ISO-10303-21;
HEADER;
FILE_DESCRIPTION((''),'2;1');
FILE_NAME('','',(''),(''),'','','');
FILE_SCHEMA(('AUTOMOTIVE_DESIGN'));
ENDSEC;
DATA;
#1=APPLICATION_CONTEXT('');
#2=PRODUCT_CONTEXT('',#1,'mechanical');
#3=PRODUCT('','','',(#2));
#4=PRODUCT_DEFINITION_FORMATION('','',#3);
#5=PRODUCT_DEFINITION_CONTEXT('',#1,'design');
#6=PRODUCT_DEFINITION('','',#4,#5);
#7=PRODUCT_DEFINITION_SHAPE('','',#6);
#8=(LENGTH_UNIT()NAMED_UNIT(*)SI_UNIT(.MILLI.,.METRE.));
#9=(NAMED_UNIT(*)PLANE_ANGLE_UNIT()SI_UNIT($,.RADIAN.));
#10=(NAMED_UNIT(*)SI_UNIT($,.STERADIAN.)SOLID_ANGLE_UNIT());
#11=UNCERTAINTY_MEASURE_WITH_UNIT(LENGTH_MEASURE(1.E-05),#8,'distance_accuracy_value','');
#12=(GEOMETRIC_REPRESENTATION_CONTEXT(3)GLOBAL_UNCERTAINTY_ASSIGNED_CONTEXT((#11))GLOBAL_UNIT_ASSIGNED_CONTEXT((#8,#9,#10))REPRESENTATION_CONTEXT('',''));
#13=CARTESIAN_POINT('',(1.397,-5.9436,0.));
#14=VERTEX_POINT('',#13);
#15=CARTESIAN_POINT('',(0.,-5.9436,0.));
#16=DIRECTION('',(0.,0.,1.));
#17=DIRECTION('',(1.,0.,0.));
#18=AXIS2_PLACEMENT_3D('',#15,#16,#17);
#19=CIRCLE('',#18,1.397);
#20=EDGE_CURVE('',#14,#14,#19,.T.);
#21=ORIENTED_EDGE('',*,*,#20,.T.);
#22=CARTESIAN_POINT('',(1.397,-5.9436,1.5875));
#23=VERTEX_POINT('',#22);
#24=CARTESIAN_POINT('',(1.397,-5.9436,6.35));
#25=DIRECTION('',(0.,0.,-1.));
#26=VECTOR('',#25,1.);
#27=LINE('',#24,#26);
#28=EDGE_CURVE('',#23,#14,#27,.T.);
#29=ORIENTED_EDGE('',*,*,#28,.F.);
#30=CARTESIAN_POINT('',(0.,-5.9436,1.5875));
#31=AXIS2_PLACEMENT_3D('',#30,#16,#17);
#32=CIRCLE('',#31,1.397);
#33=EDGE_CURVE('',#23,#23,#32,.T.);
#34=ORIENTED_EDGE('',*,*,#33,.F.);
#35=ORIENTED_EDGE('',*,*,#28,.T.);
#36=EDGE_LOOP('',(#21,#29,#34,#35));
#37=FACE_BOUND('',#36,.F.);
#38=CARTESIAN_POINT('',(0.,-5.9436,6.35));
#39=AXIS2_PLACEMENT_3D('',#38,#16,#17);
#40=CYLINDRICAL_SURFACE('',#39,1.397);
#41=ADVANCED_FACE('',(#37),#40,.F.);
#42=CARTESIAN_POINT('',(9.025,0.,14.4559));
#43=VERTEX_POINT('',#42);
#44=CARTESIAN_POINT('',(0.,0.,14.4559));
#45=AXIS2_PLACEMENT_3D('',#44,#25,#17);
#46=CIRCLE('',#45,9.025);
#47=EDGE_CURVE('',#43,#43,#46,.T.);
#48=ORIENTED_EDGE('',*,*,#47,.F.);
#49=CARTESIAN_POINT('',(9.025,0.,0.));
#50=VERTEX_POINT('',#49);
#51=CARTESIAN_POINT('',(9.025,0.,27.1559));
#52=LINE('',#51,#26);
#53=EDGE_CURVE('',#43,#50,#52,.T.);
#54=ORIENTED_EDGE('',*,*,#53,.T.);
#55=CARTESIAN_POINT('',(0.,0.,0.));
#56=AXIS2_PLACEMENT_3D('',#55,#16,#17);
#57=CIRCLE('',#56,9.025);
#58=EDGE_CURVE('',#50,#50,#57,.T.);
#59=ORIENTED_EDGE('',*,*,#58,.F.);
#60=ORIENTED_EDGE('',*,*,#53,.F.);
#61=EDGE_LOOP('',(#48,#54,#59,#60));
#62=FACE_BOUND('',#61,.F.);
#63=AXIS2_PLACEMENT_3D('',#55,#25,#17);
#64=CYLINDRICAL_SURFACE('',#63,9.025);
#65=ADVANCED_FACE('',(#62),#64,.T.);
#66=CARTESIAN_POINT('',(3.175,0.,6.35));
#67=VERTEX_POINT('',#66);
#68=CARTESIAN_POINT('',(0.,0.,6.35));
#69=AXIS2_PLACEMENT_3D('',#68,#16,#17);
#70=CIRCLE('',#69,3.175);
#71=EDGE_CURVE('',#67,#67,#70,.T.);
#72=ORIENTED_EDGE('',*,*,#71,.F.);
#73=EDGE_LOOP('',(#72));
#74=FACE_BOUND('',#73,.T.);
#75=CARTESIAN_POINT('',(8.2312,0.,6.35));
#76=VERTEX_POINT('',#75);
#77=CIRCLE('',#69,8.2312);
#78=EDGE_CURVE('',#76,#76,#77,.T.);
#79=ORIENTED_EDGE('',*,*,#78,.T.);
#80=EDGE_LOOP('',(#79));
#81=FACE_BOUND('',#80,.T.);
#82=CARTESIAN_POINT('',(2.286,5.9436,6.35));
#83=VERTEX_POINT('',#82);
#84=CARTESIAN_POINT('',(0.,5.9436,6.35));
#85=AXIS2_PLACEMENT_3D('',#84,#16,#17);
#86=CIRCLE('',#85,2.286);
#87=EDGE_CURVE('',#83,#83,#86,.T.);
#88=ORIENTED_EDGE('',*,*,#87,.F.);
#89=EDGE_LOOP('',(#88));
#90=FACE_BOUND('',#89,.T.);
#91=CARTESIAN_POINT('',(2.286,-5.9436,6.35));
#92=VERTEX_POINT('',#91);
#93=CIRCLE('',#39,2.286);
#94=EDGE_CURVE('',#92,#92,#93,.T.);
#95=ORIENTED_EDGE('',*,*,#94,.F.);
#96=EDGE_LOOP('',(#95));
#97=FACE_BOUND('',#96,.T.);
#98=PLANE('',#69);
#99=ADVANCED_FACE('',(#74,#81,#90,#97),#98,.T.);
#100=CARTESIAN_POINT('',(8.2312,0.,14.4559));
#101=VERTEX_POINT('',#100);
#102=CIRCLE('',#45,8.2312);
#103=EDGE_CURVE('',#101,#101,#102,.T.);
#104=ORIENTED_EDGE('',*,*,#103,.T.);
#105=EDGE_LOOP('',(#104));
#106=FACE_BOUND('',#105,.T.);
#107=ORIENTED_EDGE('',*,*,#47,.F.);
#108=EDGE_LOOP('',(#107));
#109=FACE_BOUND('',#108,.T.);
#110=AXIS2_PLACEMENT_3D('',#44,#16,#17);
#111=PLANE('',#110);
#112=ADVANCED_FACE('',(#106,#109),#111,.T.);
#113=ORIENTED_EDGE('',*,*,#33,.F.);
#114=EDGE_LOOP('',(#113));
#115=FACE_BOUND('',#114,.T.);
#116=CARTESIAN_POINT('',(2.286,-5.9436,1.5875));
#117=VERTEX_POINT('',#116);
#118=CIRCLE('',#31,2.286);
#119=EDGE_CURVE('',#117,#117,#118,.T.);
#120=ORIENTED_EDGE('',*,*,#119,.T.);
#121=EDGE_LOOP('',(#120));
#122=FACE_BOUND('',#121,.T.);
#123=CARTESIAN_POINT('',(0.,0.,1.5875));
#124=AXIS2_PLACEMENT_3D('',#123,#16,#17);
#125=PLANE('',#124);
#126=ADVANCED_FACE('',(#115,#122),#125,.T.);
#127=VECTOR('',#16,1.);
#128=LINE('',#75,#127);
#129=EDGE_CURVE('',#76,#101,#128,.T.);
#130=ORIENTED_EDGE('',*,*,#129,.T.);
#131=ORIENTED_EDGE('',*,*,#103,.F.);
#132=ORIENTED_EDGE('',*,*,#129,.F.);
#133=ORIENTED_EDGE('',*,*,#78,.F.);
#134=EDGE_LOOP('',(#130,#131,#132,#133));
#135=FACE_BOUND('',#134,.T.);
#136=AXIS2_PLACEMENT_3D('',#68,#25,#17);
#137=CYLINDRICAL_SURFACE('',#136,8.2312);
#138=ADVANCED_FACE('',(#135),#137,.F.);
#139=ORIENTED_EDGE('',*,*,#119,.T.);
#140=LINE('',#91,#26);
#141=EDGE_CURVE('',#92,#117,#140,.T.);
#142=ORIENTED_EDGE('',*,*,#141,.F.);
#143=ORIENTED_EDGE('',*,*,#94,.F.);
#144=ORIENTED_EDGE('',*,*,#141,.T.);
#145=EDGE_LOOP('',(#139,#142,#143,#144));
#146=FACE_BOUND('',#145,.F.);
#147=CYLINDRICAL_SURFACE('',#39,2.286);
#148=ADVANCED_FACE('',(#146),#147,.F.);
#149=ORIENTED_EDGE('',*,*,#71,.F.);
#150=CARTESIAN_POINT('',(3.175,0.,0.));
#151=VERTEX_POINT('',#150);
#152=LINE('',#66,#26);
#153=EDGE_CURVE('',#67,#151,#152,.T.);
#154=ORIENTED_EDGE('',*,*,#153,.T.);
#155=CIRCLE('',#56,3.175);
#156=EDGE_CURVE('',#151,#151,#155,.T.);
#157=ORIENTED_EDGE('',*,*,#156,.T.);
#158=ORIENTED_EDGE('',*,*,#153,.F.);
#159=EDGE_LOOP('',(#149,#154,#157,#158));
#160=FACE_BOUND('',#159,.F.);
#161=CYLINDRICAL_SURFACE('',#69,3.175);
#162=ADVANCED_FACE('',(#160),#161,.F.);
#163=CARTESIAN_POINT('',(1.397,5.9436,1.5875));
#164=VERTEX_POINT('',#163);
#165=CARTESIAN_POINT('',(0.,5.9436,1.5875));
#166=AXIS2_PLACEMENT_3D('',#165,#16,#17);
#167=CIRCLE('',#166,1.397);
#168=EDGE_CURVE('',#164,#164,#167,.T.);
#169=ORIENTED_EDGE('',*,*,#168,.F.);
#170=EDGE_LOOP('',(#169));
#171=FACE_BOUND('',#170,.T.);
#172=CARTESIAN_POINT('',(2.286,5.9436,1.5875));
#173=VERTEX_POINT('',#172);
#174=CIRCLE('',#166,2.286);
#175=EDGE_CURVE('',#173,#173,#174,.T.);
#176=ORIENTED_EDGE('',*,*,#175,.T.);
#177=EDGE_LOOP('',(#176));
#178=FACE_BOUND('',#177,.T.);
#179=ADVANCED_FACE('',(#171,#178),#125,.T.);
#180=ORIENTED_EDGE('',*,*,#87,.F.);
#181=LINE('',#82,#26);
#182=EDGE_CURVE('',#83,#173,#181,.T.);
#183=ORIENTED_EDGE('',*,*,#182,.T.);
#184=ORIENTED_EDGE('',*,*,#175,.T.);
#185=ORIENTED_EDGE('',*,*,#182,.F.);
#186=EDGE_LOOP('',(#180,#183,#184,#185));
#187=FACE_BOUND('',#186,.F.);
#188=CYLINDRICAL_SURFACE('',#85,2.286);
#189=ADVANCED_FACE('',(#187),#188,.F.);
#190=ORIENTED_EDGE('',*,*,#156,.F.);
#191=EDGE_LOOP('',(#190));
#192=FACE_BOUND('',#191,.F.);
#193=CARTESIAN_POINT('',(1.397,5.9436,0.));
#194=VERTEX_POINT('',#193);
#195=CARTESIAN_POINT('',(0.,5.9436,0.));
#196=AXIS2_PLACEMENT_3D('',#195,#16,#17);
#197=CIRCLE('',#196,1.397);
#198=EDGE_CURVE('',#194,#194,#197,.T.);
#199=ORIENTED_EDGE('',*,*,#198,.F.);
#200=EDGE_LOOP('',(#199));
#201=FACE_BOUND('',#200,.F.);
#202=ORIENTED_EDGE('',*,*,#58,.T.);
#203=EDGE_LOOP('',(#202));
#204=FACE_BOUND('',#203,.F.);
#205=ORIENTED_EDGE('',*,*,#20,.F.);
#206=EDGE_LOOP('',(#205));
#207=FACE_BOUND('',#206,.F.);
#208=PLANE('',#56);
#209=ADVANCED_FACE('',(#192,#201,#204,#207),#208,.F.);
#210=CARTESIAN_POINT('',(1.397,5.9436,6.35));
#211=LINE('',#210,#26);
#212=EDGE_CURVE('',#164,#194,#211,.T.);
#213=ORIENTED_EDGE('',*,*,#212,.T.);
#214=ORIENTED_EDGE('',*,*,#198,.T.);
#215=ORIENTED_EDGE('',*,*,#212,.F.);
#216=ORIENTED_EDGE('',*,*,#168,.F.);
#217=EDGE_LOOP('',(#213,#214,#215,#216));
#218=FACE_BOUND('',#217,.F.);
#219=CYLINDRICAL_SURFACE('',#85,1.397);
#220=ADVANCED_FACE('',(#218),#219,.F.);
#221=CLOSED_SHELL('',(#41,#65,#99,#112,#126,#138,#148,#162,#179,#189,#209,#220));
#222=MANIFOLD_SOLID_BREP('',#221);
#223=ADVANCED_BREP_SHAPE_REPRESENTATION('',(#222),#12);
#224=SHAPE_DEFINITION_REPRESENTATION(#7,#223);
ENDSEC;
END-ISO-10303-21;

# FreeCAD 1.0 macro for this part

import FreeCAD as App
import Part
import Sketcher
from FreeCAD import Vector
Q = App.Units.Quantity

doc = App.newDocument("Part")
params = doc.addObject("Spreadsheet::Sheet", "Params")
for row, (alias, value) in enumerate([
    ("pad1_length", "0.25 in"),
    ("pad2_length", "20.8059 mm"),
    ("sketch3_diameter", "0.11 in"),
    ("pocket1_length", "1 in"),
    ("sketch4_diameter", "0.18 in"),
    ("pocket2_length", "0.1875 in"),
    ("sketch5_diameter", "0.25 in"),
    ("pocket3_length", "1 in"),
    ("pocket4_length", "0.5 in"),
], start=1):
    params.set(f"A{row}", alias)
    params.set(f"B{row}", "=" + value)
    params.setAlias(f"B{row}", alias)

body = doc.addObject("PartDesign::Body", "Body")

# Sketch on XY plane
sketch1 = body.newObject("Sketcher::SketchObject", "Sketch")
sketch1.AttachmentSupport = (doc.getObject("XY_Plane"), [""])
sketch1.MapMode = "FlatFace"
sketch1.addGeometry(Part.Circle(Vector(0, 0, 0), Vector(0, 0, 1), 9), False)
sketch1.addConstraint(Sketcher.Constraint("Coincident", 0, 3, -1, 1))
sketch1.addConstraint(Sketcher.Constraint("Diameter", 0, 18.05))
pad1 = body.newObject("PartDesign::Pad", "Pad")
pad1.Profile = sketch1
pad1.setExpression("Length", "Params.pad1_length")

# Sketch on XY plane
sketch2 = body.newObject("Sketcher::SketchObject", "Sketch001")
sketch2.AttachmentSupport = (doc.getObject("XY_Plane"), [""])
sketch2.MapMode = "FlatFace"
sketch2.AttachmentOffset = App.Placement(Vector(0, 0, 0.25 * 25.4), App.Rotation())
sketch2.addGeometry(Part.Circle(Vector(0, 0, 0), Vector(0, 0, 1), 9), False)
sketch2.addGeometry(Part.Circle(Vector(0, 0, 0), Vector(0, 0, 1), 8), False)
sketch2.addConstraint(Sketcher.Constraint("Coincident", 0, 3, -1, 1))
sketch2.addConstraint(Sketcher.Constraint("Coincident", 1, 3, -1, 1))
sketch2.addConstraint(Sketcher.Constraint("Diameter", 0, 18.05))
sketch2.addConstraint(Sketcher.Constraint("Diameter", 1, 16.4624))
pad2 = body.newObject("PartDesign::Pad", "Pad001")
pad2.Profile = sketch2
pad2.setExpression("Length", "Params.pad2_length")

# Sketch on XY plane
sketch3 = body.newObject("Sketcher::SketchObject", "Sketch002")
sketch3.AttachmentSupport = (doc.getObject("XY_Plane"), [""])
sketch3.MapMode = "FlatFace"
sketch3.AttachmentOffset = App.Placement(Vector(0, 0, 0.25 * 25.4), App.Rotation())
sketch3.addGeometry(Part.Circle(Vector(0, 5.9, 0), Vector(0, 0, 1), 1.4), False)
sketch3.addGeometry(Part.Circle(Vector(0, -5.9, 0), Vector(0, 0, 1), 1.4), False)
sketch3.addConstraint(Sketcher.Constraint("Equal", 0, 1))
sketch3.addConstraint(Sketcher.Constraint("Symmetric", 0, 3, 1, 3, -1, 1))
sketch3.addConstraint(Sketcher.Constraint("PointOnObject", 0, 3, -2))
sketch3.addConstraint(Sketcher.Constraint("Diameter", 0, Q("0.11 in")))
sketch3.addConstraint(Sketcher.Constraint("DistanceY", -1, 1, 0, 3, Q("0.234 in")))
sketch3.setExpression("Constraints[3]", "Params.sketch3_diameter")
pocket1 = body.newObject("PartDesign::Pocket", "Pocket")
pocket1.Profile = sketch3
pocket1.setExpression("Length", "Params.pocket1_length")

# Sketch on XY plane
sketch4 = body.newObject("Sketcher::SketchObject", "Sketch003")
sketch4.AttachmentSupport = (doc.getObject("XY_Plane"), [""])
sketch4.MapMode = "FlatFace"
sketch4.AttachmentOffset = App.Placement(Vector(0, 0, 0.25 * 25.4), App.Rotation())
sketch4.addGeometry(Part.Circle(Vector(0, 5.9, 0), Vector(0, 0, 1), 2.3), False)
sketch4.addGeometry(Part.Circle(Vector(0, -5.9, 0), Vector(0, 0, 1), 2.3), False)
sketch4.addConstraint(Sketcher.Constraint("Equal", 0, 1))
sketch4.addConstraint(Sketcher.Constraint("Symmetric", 0, 3, 1, 3, -1, 1))
sketch4.addConstraint(Sketcher.Constraint("PointOnObject", 0, 3, -2))
sketch4.addConstraint(Sketcher.Constraint("Diameter", 0, Q("0.18 in")))
sketch4.addConstraint(Sketcher.Constraint("DistanceY", -1, 1, 0, 3, Q("0.234 in")))
sketch4.setExpression("Constraints[3]", "Params.sketch4_diameter")
pocket2 = body.newObject("PartDesign::Pocket", "Pocket001")
pocket2.Profile = sketch4
pocket2.setExpression("Length", "Params.pocket2_length")

# Sketch on XY plane
sketch5 = body.newObject("Sketcher::SketchObject", "Sketch004")
sketch5.AttachmentSupport = (doc.getObject("XY_Plane"), [""])
sketch5.MapMode = "FlatFace"
sketch5.AttachmentOffset = App.Placement(Vector(0, 0, 0.25 * 25.4), App.Rotation())
sketch5.addGeometry(Part.Circle(Vector(0, 0, 0), Vector(0, 0, 1), 3.2), False)
sketch5.addConstraint(Sketcher.Constraint("Coincident", 0, 3, -1, 1))
sketch5.addConstraint(Sketcher.Constraint("Diameter", 0, Q("0.25 in")))
sketch5.setExpression("Constraints[1]", "Params.sketch5_diameter")
pocket3 = body.newObject("PartDesign::Pocket", "Pocket002")
pocket3.Profile = sketch5
pocket3.setExpression("Length", "Params.pocket3_length")

# Sketch on XY plane
sketch6 = body.newObject("Sketcher::SketchObject", "Sketch005")
sketch6.AttachmentSupport = (doc.getObject("XY_Plane"), [""])
sketch6.MapMode = "FlatFace"
sketch6.AttachmentOffset = App.Placement(Vector(0, 0, 27.1559), App.Rotation())
sketch6.addGeometry(Part.Circle(Vector(28, -20, 0), Vector(0, 0, 1), 66), False)
sketch6.addConstraint(Sketcher.Constraint("Diameter", 0, 131.7084))
sketch6.addConstraint(Sketcher.Constraint("DistanceX", -1, 1, 0, 3, Q("1.0979 in")))
sketch6.addConstraint(Sketcher.Constraint("DistanceY", 0, 3, -1, 1, 20.1987))
pocket4 = body.newObject("PartDesign::Pocket", "Pocket003")
pocket4.Profile = sketch6
pocket4.setExpression("Length", "Params.pocket4_length")

doc.recompute()
